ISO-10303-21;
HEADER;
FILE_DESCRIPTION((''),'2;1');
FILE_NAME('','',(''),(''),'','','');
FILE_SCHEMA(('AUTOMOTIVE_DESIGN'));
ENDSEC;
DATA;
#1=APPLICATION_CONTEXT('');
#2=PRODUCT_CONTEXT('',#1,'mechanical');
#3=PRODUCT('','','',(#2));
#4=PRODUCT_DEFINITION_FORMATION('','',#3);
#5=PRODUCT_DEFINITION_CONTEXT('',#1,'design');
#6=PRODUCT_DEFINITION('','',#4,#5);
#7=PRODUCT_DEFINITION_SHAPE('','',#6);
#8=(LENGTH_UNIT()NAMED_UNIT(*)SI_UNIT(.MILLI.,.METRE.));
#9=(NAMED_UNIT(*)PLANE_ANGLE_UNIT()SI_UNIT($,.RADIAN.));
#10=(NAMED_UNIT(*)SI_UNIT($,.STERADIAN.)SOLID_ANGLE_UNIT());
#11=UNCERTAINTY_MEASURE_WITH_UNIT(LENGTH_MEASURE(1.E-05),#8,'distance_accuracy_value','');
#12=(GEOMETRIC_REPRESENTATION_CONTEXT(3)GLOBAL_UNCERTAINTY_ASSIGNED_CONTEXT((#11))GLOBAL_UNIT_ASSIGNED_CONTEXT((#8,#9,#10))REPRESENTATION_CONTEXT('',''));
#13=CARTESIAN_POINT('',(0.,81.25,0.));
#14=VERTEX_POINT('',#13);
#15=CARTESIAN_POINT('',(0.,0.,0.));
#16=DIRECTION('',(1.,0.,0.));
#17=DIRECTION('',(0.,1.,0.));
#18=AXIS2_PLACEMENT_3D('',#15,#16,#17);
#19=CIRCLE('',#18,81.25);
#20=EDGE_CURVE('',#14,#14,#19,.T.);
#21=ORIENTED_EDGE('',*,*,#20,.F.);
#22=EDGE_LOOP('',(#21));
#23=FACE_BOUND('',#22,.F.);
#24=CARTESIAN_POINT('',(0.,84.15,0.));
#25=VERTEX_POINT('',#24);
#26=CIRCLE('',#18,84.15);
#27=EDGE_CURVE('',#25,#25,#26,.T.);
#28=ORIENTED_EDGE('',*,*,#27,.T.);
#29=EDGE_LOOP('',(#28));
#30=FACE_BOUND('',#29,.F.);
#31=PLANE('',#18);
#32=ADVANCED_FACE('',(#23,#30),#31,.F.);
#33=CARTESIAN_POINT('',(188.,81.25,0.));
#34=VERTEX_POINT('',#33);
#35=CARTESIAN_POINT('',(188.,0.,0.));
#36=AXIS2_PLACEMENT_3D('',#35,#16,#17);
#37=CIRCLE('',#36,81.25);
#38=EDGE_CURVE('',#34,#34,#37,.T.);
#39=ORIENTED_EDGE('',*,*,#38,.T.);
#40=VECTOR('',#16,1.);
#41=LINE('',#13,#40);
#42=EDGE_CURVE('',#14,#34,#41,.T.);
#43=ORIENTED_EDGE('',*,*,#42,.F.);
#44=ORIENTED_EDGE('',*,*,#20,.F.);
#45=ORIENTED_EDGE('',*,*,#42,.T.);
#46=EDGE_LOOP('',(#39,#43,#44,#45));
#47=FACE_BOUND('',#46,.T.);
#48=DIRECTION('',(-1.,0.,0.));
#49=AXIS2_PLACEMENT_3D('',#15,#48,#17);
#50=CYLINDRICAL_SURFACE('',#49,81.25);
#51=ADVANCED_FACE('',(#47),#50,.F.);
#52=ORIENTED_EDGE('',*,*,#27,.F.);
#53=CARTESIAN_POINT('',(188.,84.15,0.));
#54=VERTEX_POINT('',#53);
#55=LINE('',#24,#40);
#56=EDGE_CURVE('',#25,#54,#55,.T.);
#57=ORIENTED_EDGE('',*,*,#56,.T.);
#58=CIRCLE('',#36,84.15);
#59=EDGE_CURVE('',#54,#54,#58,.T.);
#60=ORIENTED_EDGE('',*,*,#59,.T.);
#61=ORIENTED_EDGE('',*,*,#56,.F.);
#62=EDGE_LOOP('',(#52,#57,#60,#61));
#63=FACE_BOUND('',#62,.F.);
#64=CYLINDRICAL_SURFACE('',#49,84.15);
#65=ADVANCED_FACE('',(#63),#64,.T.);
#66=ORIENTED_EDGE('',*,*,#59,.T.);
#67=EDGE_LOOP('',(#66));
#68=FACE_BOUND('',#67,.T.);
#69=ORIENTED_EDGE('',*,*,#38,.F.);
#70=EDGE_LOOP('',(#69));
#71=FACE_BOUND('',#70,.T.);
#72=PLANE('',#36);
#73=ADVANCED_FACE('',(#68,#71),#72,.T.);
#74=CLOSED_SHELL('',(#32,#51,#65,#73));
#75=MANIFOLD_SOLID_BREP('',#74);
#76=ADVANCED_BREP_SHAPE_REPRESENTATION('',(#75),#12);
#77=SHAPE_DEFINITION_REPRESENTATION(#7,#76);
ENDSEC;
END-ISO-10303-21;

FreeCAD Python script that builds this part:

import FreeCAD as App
import Part
import Sketcher

doc = App.newDocument("Part")
body = doc.addObject("PartDesign::Body", "Body")

# Sketch on YZ plane
sketch1 = doc.addObject("Sketcher::SketchObject", "Sketch")
body.addObject(sketch1)
sketch1.AttachmentSupport = (doc.YZ_Plane, [""])
sketch1.MapMode = "FlatFace"
sketch1.addGeometry(Part.Circle(App.Vector(0, 0, 0), App.Vector(0, 0, 1), 84.15), False)
sketch1.addGeometry(Part.Circle(App.Vector(0, 0, 0), App.Vector(0, 0, 1), 81.25), False)
sketch1.addConstraint(Sketcher.Constraint("Coincident", 0, 3, -1, 1))
sketch1.addConstraint(Sketcher.Constraint("Coincident", 1, 3, -1, 1))
sketch1.addConstraint(Sketcher.Constraint("Diameter", 0, 168.3))
sketch1.addConstraint(Sketcher.Constraint("Diameter", 1, 162.5))
pad1 = doc.addObject("PartDesign::Pad", "Pad")
body.addObject(pad1)
pad1.Profile = sketch1
pad1.Length = 188

doc.recompute()
